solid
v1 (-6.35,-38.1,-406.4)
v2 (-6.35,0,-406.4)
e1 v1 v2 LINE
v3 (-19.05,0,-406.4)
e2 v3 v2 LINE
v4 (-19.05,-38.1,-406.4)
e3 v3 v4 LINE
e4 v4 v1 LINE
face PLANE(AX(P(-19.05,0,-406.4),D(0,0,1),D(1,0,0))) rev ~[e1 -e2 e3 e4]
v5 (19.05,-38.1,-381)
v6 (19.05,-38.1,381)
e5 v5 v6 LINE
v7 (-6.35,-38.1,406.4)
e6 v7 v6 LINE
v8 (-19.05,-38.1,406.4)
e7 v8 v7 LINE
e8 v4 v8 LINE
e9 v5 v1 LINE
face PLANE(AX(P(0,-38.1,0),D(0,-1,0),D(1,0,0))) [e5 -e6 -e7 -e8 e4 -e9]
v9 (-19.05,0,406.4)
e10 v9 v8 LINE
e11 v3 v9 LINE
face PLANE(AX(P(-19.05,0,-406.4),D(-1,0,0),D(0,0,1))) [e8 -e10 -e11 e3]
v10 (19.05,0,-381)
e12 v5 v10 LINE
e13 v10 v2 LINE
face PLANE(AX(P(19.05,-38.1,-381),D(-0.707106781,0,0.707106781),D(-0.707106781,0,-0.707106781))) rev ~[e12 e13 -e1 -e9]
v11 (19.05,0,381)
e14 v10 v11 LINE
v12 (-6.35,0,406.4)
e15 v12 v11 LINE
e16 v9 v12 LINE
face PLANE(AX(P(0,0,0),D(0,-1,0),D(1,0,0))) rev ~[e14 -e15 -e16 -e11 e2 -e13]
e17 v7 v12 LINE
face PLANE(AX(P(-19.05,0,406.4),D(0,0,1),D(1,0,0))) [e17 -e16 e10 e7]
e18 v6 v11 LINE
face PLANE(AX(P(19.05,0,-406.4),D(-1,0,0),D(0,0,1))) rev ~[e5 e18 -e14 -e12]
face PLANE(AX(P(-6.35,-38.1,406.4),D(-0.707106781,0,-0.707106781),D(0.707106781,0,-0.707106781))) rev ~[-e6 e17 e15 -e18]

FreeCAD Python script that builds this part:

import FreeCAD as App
import Part
import Sketcher

V = App.Vector
Q = App.Units.Quantity


def add_polygon(sketch, points):
    """Adds a closed chain of lines whose ends are joined by coincident constraints."""
    first, n = sketch.GeometryCount, len(points)
    for a, b in zip(points, points[1:] + points[:1]):
        sketch.addGeometry(Part.LineSegment(App.Vector(*a, 0), App.Vector(*b, 0)), False)
    for i in range(n):
        sketch.addConstraint(Sketcher.Constraint("Coincident", first + i, 2, first + (i + 1) % n, 1))

doc = App.newDocument("Part")
body = doc.addObject("PartDesign::Body", "Body")

# Sketch on XZ plane
sketch1 = doc.addObject("Sketcher::SketchObject", "Sketch")
body.addObject(sketch1)
sketch1.AttachmentSupport = (doc.XZ_Plane, [""])
sketch1.MapMode = "FlatFace"
add_polygon(sketch1, [(-19.05, 406.4), (-19.05, -406.4), (19.05, -406.4), (19.05, 406.4)])  # lines 0-3
sketch1.addConstraint(Sketcher.Constraint("Vertical", 0))
sketch1.addConstraint(Sketcher.Constraint("Horizontal", 1))
sketch1.addConstraint(Sketcher.Constraint("Vertical", 2))
sketch1.addConstraint(Sketcher.Constraint("Horizontal", 3))
sketch1.addConstraint(Sketcher.Constraint("Symmetric", 0, 2, 2, 2, -1, 1))
sketch1.addConstraint(Sketcher.Constraint("DistanceY", 0, 2, 0, 1, Q("32 in")))
sketch1.addConstraint(Sketcher.Constraint("DistanceX", 1, 1, 1, 2, Q("1.5 in")))
pad1 = doc.addObject("PartDesign::Pad", "Pad")
body.addObject(pad1)
pad1.Profile = sketch1
pad1.Length = Q("1.5 in")

# Sketch on XZ plane
sketch2 = doc.addObject("Sketcher::SketchObject", "Sketch001")
body.addObject(sketch2)
sketch2.AttachmentSupport = (doc.XZ_Plane, [""])
sketch2.MapMode = "FlatFace"
sketch2.AttachmentOffset = App.Placement(V(0, 0, 1.5 * 25.4), App.Rotation())
add_polygon(sketch2, [(19.05, -406.4), (19.05, -381), (-6.35, -406.4)])  # lines 0-2
add_polygon(sketch2, [(19.05, 406.4), (-6.35, 406.4), (19.05, 381)])  # lines 3-5
sketch2.addConstraint(Sketcher.Constraint("Vertical", 0))
sketch2.addConstraint(Sketcher.Constraint("Horizontal", 2))
sketch2.addConstraint(Sketcher.Constraint("Horizontal", 3))
sketch2.addConstraint(Sketcher.Constraint("Vertical", 5))
sketch2.addConstraint(Sketcher.Constraint("Symmetric", 1, 2, 3, 2, -1))
sketch2.addConstraint(Sketcher.Constraint("Symmetric", 0, 2, 4, 2, -1))
sketch2.addConstraint(Sketcher.Constraint("Perpendicular", 1, 4))
sketch2.addConstraint(Sketcher.Constraint("DistanceX", 2, 1, 2, 2, Q("1 in")))
sketch2.addConstraint(Sketcher.Constraint("DistanceY", 0, 2, -1, 1, Q("15 in")))
sketch2.addConstraint(Sketcher.Constraint("DistanceX", -1, 1, 0, 2, Q("0.75 in")))
pocket1 = doc.addObject("PartDesign::Pocket", "Pocket")
body.addObject(pocket1)
pocket1.Profile = sketch2
pocket1.Type = "ThroughAll"

doc.recompute()
